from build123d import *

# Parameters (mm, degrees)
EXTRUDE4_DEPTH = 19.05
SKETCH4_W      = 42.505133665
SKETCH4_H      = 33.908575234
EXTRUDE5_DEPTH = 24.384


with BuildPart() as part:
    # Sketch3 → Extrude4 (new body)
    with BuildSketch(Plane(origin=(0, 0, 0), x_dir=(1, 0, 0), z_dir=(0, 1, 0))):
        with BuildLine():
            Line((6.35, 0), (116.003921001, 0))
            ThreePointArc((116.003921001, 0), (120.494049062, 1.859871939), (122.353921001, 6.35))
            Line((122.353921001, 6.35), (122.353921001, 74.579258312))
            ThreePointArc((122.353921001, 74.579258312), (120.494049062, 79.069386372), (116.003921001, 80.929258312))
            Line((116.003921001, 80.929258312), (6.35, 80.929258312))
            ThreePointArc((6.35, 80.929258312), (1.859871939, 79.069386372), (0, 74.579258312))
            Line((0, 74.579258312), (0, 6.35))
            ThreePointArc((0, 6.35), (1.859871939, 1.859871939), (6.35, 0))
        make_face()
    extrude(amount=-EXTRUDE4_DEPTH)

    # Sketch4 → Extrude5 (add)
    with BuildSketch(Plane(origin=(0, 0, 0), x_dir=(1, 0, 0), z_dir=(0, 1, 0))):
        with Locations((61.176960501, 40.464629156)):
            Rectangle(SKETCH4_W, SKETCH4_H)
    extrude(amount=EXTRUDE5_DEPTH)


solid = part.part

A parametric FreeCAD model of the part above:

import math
import FreeCAD as App
import Part
import Sketcher

V = App.Vector
Q = App.Units.Quantity

doc = App.newDocument("Part")
body = doc.addObject("PartDesign::Body", "Body")

# Sketch on XZ plane
sketch1 = body.newObject("Sketcher::SketchObject", "Sketch")
sketch1.AttachmentSupport = (doc.getObject("XZ_Plane"), [""])
sketch1.MapMode = "FlatFace"
sketch1.addGeometry([
    Part.LineSegment(V(6.35, 0, 0), V(116.003921, 0, 0)),  # 0
    Part.ArcOfCircle(Part.Circle(V(116.003921, -6.35, 0), V(0, 0, 1), 6.35), math.radians(0), math.radians(90)),  # 1
    Part.LineSegment(V(122.353921, -6.35, 0), V(122.353921, -74.579258, 0)),  # 2
    Part.ArcOfCircle(Part.Circle(V(116.003921, -74.579258, 0), V(0, 0, 1), 6.35), math.radians(-90), math.radians(0)),  # 3
    Part.LineSegment(V(116.003921, -80.929258, 0), V(6.35, -80.929258, 0)),  # 4
    Part.ArcOfCircle(Part.Circle(V(6.35, -74.579258, 0), V(0, 0, 1), 6.35), math.radians(180), math.radians(270)),  # 5
    Part.LineSegment(V(0, -74.579258, 0), V(0, -6.35, 0)),  # 6
    Part.ArcOfCircle(Part.Circle(V(6.35, -6.35, 0), V(0, 0, 1), 6.35), math.radians(90), math.radians(180)),  # 7
], False)
sketch1.addConstraint([
    Sketcher.Constraint("Tangent", 0, 2, 1, 2),
    Sketcher.Constraint("Tangent", 1, 1, 2, 1),
    Sketcher.Constraint("Tangent", 2, 2, 3, 2),
    Sketcher.Constraint("Tangent", 3, 1, 4, 1),
    Sketcher.Constraint("Tangent", 4, 2, 5, 2),
    Sketcher.Constraint("Tangent", 5, 1, 6, 1),
    Sketcher.Constraint("Tangent", 6, 2, 7, 2),
    Sketcher.Constraint("Tangent", 7, 1, 0, 1),
    Sketcher.Constraint("Horizontal", 0),
    Sketcher.Constraint("Vertical", 2),
    Sketcher.Constraint("Horizontal", 4),
    Sketcher.Constraint("Vertical", 6),
    Sketcher.Constraint("Equal", 1, 3),
    Sketcher.Constraint("Equal", 3, 5),
    Sketcher.Constraint("Equal", 5, 7),
    Sketcher.Constraint("PointOnObject", 0, 2, -1),
    Sketcher.Constraint("PointOnObject", 5, 1, -2),
    Sketcher.Constraint("Radius", 1, Q("0.25 in")),
    Sketcher.Constraint("DistanceX", 0, 1, 0, 2, 109.653921),
    Sketcher.Constraint("DistanceY", 2, 2, 2, 1, 68.229258),
])
pad1 = body.newObject("PartDesign::Pad", "Pad")
pad1.Profile = sketch1
pad1.Length = Q("0.75 in")

# Sketch on XZ plane
sketch2 = body.newObject("Sketcher::SketchObject", "Sketch001")
sketch2.AttachmentSupport = (doc.getObject("XZ_Plane"), [""])
sketch2.MapMode = "FlatFace"
sketch2.addGeometry([
    Part.LineSegment(V(39.924394, -57.418917, 0), V(39.924394, -23.510342, 0)),
    Part.LineSegment(V(39.924394, -23.510342, 0), V(82.429527, -23.510342, 0)),
    Part.LineSegment(V(82.429527, -23.510342, 0), V(82.429527, -57.418917, 0)),
    Part.LineSegment(V(82.429527, -57.418917, 0), V(39.924394, -57.418917, 0)),
], False)
sketch2.addConstraint([
    Sketcher.Constraint("Coincident", 0, 2, 1, 1),
    Sketcher.Constraint("Coincident", 1, 2, 2, 1),
    Sketcher.Constraint("Coincident", 2, 2, 3, 1),
    Sketcher.Constraint("Coincident", 3, 2, 0, 1),
    Sketcher.Constraint("Vertical", 0),
    Sketcher.Constraint("Horizontal", 1),
    Sketcher.Constraint("Vertical", 2),
    Sketcher.Constraint("Horizontal", 3),
    Sketcher.Constraint("DistanceX", 1, 1, 1, 2, 42.505134),
    Sketcher.Constraint("DistanceY", 0, 1, 0, 2, 33.908575),
    Sketcher.Constraint("DistanceY", 0, 2, -1, 1, 23.510342),
    Sketcher.Constraint("DistanceX", -1, 1, 0, 2, 39.924394),
])
pad2 = body.newObject("PartDesign::Pad", "Pad001")
pad2.Profile = sketch2
pad2.Length = Q("0.96 in")
pad2.Reversed = True

doc.recompute()
